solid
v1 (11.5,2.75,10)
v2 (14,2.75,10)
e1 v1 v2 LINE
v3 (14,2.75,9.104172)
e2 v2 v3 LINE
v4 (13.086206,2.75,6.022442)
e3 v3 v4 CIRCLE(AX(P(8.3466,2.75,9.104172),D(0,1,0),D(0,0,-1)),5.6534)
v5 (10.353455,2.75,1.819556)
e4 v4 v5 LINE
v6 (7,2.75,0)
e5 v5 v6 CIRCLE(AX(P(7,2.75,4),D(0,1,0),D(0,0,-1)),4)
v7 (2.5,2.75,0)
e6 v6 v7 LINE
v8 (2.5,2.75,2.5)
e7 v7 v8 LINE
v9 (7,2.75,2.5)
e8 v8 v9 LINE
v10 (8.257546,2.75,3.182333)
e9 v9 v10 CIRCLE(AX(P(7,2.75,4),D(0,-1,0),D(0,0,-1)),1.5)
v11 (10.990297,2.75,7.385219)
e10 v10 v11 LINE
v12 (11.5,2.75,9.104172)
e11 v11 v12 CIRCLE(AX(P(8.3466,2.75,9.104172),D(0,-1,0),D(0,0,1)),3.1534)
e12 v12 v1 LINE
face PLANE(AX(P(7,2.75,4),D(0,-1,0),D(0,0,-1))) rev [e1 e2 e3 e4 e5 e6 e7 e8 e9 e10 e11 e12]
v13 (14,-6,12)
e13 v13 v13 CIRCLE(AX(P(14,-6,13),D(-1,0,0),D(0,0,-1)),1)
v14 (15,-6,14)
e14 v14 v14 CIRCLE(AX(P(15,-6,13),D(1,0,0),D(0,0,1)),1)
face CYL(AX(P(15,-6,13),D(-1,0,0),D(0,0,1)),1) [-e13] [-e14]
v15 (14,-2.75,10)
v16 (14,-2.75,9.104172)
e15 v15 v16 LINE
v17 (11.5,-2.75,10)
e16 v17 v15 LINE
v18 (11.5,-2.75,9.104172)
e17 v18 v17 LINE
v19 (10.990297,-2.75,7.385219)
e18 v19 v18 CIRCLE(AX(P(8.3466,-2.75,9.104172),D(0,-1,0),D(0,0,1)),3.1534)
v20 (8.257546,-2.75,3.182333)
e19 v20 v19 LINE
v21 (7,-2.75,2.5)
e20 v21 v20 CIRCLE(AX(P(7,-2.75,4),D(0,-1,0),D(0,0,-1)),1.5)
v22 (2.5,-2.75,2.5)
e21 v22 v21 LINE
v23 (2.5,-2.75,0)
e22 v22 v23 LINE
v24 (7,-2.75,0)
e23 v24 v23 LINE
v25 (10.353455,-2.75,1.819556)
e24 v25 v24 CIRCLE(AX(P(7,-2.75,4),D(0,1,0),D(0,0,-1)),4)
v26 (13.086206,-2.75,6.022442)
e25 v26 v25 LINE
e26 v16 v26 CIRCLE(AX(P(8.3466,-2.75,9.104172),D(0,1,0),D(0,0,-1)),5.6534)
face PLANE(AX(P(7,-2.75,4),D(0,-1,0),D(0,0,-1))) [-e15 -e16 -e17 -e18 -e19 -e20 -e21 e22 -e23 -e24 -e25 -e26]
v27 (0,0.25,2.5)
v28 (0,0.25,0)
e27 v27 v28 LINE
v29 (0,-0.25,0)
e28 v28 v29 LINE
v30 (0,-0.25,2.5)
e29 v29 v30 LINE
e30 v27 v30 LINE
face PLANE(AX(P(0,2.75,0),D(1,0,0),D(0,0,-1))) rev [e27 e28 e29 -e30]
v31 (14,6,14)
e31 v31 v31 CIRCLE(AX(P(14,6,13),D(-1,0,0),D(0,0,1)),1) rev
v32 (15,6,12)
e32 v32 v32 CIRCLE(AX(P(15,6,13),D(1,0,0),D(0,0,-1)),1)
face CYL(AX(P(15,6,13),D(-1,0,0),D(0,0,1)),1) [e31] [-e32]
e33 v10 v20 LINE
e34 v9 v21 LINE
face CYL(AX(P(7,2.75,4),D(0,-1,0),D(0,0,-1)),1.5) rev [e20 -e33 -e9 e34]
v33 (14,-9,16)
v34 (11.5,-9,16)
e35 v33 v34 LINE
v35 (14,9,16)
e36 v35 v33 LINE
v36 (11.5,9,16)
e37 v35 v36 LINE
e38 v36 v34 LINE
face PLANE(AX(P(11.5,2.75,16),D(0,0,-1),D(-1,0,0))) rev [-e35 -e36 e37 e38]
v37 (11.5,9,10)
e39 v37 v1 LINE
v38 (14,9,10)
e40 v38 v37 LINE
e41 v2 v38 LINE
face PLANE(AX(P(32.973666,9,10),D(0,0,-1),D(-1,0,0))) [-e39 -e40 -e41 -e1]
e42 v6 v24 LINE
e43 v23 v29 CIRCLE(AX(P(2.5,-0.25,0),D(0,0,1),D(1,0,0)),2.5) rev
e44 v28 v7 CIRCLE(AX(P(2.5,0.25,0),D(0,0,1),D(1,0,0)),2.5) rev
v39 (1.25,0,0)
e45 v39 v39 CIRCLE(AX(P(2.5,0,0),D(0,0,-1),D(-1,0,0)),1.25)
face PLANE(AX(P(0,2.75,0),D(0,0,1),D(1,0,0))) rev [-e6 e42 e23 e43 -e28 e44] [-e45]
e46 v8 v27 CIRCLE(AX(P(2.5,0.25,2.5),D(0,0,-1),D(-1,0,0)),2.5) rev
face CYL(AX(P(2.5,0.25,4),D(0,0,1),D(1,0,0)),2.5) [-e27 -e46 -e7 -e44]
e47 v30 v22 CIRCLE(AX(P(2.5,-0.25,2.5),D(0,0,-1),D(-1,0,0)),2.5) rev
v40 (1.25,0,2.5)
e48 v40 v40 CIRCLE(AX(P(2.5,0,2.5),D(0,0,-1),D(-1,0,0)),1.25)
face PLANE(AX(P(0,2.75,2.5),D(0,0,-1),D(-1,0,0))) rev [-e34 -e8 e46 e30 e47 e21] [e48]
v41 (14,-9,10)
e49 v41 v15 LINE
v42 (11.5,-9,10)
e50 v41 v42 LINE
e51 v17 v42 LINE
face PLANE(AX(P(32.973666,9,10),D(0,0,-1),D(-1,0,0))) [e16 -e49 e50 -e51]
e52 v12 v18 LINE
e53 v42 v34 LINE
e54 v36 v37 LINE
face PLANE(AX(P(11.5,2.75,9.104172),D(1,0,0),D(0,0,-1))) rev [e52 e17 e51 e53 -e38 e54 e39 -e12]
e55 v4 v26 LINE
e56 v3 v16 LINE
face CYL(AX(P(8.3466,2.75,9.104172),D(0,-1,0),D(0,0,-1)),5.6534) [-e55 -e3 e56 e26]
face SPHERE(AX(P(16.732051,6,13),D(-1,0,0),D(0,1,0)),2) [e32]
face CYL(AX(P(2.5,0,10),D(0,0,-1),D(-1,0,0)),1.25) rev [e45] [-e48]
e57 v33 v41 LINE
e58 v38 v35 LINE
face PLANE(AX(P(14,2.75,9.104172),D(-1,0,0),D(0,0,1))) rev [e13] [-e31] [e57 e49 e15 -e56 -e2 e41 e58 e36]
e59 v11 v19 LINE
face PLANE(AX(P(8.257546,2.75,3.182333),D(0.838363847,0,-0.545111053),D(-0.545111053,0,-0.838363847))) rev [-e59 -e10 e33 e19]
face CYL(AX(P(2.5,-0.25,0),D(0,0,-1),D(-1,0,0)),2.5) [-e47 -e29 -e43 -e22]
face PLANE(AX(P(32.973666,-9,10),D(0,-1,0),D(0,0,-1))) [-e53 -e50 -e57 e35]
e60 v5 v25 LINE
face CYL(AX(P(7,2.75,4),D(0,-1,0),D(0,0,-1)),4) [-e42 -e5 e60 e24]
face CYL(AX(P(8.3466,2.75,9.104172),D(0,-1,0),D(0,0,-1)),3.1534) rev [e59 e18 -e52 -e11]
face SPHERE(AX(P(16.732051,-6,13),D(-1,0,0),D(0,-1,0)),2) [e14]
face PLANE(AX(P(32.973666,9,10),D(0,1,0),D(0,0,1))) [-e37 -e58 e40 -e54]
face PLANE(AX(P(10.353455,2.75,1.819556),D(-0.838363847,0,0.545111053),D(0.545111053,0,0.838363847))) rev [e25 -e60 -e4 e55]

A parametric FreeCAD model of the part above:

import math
import FreeCAD as App
import Part
import Sketcher

V = App.Vector
Q = App.Units.Quantity


def edges_at(feature, points):
    """Names of the edges that pass closest to the given points."""
    edges = feature.Shape.Edges
    near = lambda p: min(range(len(edges)), key=lambda i: edges[i].distToShape(Part.Vertex(*p))[0])
    return sorted({f"Edge{near(p) + 1}" for p in points})


def add_polygon(sketch, points):
    """Adds a closed chain of lines whose ends are joined by coincident constraints."""
    first, n = sketch.GeometryCount, len(points)
    for a, b in zip(points, points[1:] + points[:1]):
        sketch.addGeometry(Part.LineSegment(App.Vector(*a, 0), App.Vector(*b, 0)), False)
    for i in range(n):
        sketch.addConstraint(Sketcher.Constraint("Coincident", first + i, 2, first + (i + 1) % n, 1))

doc = App.newDocument("Part")
body = doc.addObject("PartDesign::Body", "Body")

sketch1 = body.newObject("Sketcher::SketchObject", "Sketch")
sketch1.AttachmentSupport = (doc.getObject("XZ_Plane"), [""])
sketch1.MapMode = "FlatFace"
sketch1.addGeometry([
    Part.LineSegment(V(7, 0, 0), V(0, 0, 0)),
    Part.LineSegment(V(0, 0, 0), V(0, 2.5, 0)),
    Part.LineSegment(V(0, 2.5, 0), V(7, 2.5, 0)),
    Part.ArcOfCircle(Part.Circle(V(7, 4, 0), V(0, 0, 1), 1.5), math.radians(-90), math.radians(-33)),
    Part.LineSegment(V(8.3, 3.2, 0), V(11, 7.4, 0)),
    Part.ArcOfCircle(Part.Circle(V(8.3, 9.1, 0), V(0, 0, 1), 3.2), math.radians(-33), math.radians(0)),
    Part.LineSegment(V(11.5, 9.1, 0), V(11.5, 16, 0)),
    Part.LineSegment(V(11.5, 16, 0), V(14, 16, 0)),
    Part.LineSegment(V(14, 16, 0), V(14, 9.1, 0)),
    Part.ArcOfCircle(Part.Circle(V(8.3, 9.1, 0), V(0, 0, 1), 5.7), math.radians(-33), math.radians(0)),
    Part.LineSegment(V(13.1, 6, 0), V(10.4, 1.8, 0)),
    Part.ArcOfCircle(Part.Circle(V(7, 4, 0), V(0, 0, 1), 4), math.radians(-90), math.radians(-33)),
], False)
sketch1.addConstraint([
    Sketcher.Constraint("Coincident", 0, 2, 1, 1),
    Sketcher.Constraint("Coincident", 1, 2, 2, 1),
    Sketcher.Constraint("Tangent", 2, 2, 3, 1),
    Sketcher.Constraint("Tangent", 3, 2, 4, 1),
    Sketcher.Constraint("Tangent", 4, 2, 5, 1),
    Sketcher.Constraint("Tangent", 5, 2, 6, 1),
    Sketcher.Constraint("Coincident", 6, 2, 7, 1),
    Sketcher.Constraint("Coincident", 7, 2, 8, 1),
    Sketcher.Constraint("Tangent", 8, 2, 9, 2),
    Sketcher.Constraint("Tangent", 9, 1, 10, 1),
    Sketcher.Constraint("Tangent", 10, 2, 11, 2),
    Sketcher.Constraint("Tangent", 11, 1, 0, 1),
    Sketcher.Constraint("Horizontal", 0),
    Sketcher.Constraint("Vertical", 1),
    Sketcher.Constraint("Horizontal", 2),
    Sketcher.Constraint("Vertical", 6),
    Sketcher.Constraint("Horizontal", 7),
    Sketcher.Constraint("Vertical", 8),
    Sketcher.Constraint("Coincident", 0, 2, -1, 1),
    Sketcher.Constraint("Coincident", 9, 3, 5, 3),
    Sketcher.Constraint("Coincident", 11, 3, 3, 3),
    Sketcher.Constraint("Parallel", 4, 10),
    Sketcher.Constraint("Radius", 11, Q("4 mm")),
    Sketcher.Constraint("Radius", 3, Q("1.5 mm")),
    Sketcher.Constraint("DistanceX", 0, 2, 0, 1, Q("7 mm")),
    Sketcher.Constraint("DistanceY", -1, 1, 6, 2, Q("16 mm")),
    Sketcher.Constraint("DistanceX", -1, 1, 7, 2, Q("14 mm")),
    Sketcher.Constraint("Radius", 5, Q("3.1534 mm")),
    Sketcher.Constraint("Distance", 4, Q("5.0132 mm")),
])
pad1 = body.newObject("PartDesign::Pad", "Pad")
pad1.Profile = sketch1
pad1.Length = 5.5
pad1.Midplane = True

sketch2 = body.newObject("Sketcher::SketchObject", "Sketch001")
sketch2.AttachmentSupport = (doc.getObject("XY_Plane"), [""])
sketch2.MapMode = "FlatFace"
sketch2.addGeometry(Part.Circle(V(2.5, 0, 0), V(0, 0, 1), 1.2), False)
sketch2.addConstraint([
    Sketcher.Constraint("PointOnObject", 0, 3, -1),
    Sketcher.Constraint("Diameter", 0, Q("2.5 mm")),
    Sketcher.Constraint("DistanceX", -1, 1, 0, 3, Q("2.5 mm")),
])
pocket1 = body.newObject("PartDesign::Pocket", "Pocket")
pocket1.Profile = sketch2
pocket1.Length = 10
pocket1.Reversed = True
doc.recompute()

fillet = body.newObject("PartDesign::Fillet", "Fillet")
fillet.Base = (pocket1, edges_at(pocket1, [(0, -2.75, 1.25), (0, 2.75, 1.25)]))
fillet.Radius = 2.5

sketch3 = body.newObject("Sketcher::SketchObject", "Sketch002")
sketch3.AttachmentSupport = (doc.getObject("YZ_Plane"), [""])
sketch3.MapMode = "FlatFace"
sketch3.AttachmentOffset = App.Placement(V(0, 0, 11.5), App.Rotation())
add_polygon(sketch3, [(9, 10), (-9, 10), (-9, 16), (9, 16)])
sketch3.addConstraint([
    Sketcher.Constraint("Horizontal", 0),
    Sketcher.Constraint("Vertical", 1),
    Sketcher.Constraint("Horizontal", 2),
    Sketcher.Constraint("Vertical", 3),
    Sketcher.Constraint("DistanceX", 0, 2, 0, 1, Q("18 mm")),
    Sketcher.Constraint("DistanceY", 1, 1, 1, 2, Q("6 mm")),
    Sketcher.Constraint("DistanceX", 0, 2, -1, 1, Q("9 mm")),
    Sketcher.Constraint("DistanceY", -1, 1, 0, 2, Q("10 mm")),
])
pad2 = body.newObject("PartDesign::Pad", "Pad001")
pad2.Profile = sketch3
pad2.Length = 2.5

sketch4 = body.newObject("Sketcher::SketchObject", "Sketch003")
sketch4.AttachmentSupport = (doc.getObject("YZ_Plane"), [""])
sketch4.MapMode = "FlatFace"
sketch4.AttachmentOffset = App.Placement(V(0, 0, 14), App.Rotation())
sketch4.addGeometry(Part.Circle(V(6, 13, 0), V(0, 0, 1), 1), False)
sketch4.addConstraint([
    Sketcher.Constraint("Diameter", 0, Q("2 mm")),
    Sketcher.Constraint("DistanceX", -1, 1, 0, 3, Q("6 mm")),
    Sketcher.Constraint("DistanceY", -1, 1, 0, 3, Q("13 mm")),
])
pad3 = body.newObject("PartDesign::Pad", "Pad002")
pad3.Profile = sketch4
pad3.Length = 1

sketch5 = body.newObject("Sketcher::SketchObject", "Sketch004")
sketch5.AttachmentSupport = (doc.getObject("XY_Plane"), [""])
sketch5.MapMode = "FlatFace"
sketch5.AttachmentOffset = App.Placement(V(0, 0, 13), App.Rotation())
sketch5.addGeometry([
    Part.LineSegment(V(18.7, 6, 0), V(15, 6, 0)),
    Part.LineSegment(V(15, 6, 0), V(15, 7, 0)),
    Part.ArcOfCircle(Part.Circle(V(16.7, 6, 0), V(0, 0, 1), 2), math.radians(0), math.radians(150)),
], False)
sketch5.addGeometry(Part.LineSegment(V(15, 6, 0), V(18.7, 6, 0)), True)
sketch5.addConstraint([
    Sketcher.Constraint("Coincident", 0, 2, 1, 1),
    Sketcher.Constraint("Coincident", 1, 2, 2, 2),
    Sketcher.Constraint("Coincident", 2, 1, 0, 1),
    Sketcher.Constraint("Horizontal", 0),
    Sketcher.Constraint("Vertical", 1),
    Sketcher.Constraint("Horizontal", 3),
    Sketcher.Constraint("Coincident", 3, 1, 0, 2),
    Sketcher.Constraint("Horizontal", 2, 3, 0, 2),
    Sketcher.Constraint("Equal", 0, 3),
    Sketcher.Constraint("Radius", 2, Q("2 mm")),
    Sketcher.Constraint("DistanceY", 1, 1, 1, 2, Q("1 mm")),
    Sketcher.Constraint("DistanceY", -1, 1, 2, 3, Q("6 mm")),
    Sketcher.Constraint("DistanceX", -1, 1, 0, 2, Q("15 mm")),
])
revolution = body.newObject("PartDesign::Revolution", "Revolution")
revolution.Profile = sketch5
revolution.ReferenceAxis = (sketch5, ["Axis0"])
revolution.Angle = 360
doc.recompute()

mirrored = body.newObject("PartDesign::Mirrored", "Mirrored")
mirrored.Originals = [pad3, revolution]
mirrored.MirrorPlane = (doc.getObject("XZ_Plane"), [""])
body.Tip = mirrored

doc.recompute()
